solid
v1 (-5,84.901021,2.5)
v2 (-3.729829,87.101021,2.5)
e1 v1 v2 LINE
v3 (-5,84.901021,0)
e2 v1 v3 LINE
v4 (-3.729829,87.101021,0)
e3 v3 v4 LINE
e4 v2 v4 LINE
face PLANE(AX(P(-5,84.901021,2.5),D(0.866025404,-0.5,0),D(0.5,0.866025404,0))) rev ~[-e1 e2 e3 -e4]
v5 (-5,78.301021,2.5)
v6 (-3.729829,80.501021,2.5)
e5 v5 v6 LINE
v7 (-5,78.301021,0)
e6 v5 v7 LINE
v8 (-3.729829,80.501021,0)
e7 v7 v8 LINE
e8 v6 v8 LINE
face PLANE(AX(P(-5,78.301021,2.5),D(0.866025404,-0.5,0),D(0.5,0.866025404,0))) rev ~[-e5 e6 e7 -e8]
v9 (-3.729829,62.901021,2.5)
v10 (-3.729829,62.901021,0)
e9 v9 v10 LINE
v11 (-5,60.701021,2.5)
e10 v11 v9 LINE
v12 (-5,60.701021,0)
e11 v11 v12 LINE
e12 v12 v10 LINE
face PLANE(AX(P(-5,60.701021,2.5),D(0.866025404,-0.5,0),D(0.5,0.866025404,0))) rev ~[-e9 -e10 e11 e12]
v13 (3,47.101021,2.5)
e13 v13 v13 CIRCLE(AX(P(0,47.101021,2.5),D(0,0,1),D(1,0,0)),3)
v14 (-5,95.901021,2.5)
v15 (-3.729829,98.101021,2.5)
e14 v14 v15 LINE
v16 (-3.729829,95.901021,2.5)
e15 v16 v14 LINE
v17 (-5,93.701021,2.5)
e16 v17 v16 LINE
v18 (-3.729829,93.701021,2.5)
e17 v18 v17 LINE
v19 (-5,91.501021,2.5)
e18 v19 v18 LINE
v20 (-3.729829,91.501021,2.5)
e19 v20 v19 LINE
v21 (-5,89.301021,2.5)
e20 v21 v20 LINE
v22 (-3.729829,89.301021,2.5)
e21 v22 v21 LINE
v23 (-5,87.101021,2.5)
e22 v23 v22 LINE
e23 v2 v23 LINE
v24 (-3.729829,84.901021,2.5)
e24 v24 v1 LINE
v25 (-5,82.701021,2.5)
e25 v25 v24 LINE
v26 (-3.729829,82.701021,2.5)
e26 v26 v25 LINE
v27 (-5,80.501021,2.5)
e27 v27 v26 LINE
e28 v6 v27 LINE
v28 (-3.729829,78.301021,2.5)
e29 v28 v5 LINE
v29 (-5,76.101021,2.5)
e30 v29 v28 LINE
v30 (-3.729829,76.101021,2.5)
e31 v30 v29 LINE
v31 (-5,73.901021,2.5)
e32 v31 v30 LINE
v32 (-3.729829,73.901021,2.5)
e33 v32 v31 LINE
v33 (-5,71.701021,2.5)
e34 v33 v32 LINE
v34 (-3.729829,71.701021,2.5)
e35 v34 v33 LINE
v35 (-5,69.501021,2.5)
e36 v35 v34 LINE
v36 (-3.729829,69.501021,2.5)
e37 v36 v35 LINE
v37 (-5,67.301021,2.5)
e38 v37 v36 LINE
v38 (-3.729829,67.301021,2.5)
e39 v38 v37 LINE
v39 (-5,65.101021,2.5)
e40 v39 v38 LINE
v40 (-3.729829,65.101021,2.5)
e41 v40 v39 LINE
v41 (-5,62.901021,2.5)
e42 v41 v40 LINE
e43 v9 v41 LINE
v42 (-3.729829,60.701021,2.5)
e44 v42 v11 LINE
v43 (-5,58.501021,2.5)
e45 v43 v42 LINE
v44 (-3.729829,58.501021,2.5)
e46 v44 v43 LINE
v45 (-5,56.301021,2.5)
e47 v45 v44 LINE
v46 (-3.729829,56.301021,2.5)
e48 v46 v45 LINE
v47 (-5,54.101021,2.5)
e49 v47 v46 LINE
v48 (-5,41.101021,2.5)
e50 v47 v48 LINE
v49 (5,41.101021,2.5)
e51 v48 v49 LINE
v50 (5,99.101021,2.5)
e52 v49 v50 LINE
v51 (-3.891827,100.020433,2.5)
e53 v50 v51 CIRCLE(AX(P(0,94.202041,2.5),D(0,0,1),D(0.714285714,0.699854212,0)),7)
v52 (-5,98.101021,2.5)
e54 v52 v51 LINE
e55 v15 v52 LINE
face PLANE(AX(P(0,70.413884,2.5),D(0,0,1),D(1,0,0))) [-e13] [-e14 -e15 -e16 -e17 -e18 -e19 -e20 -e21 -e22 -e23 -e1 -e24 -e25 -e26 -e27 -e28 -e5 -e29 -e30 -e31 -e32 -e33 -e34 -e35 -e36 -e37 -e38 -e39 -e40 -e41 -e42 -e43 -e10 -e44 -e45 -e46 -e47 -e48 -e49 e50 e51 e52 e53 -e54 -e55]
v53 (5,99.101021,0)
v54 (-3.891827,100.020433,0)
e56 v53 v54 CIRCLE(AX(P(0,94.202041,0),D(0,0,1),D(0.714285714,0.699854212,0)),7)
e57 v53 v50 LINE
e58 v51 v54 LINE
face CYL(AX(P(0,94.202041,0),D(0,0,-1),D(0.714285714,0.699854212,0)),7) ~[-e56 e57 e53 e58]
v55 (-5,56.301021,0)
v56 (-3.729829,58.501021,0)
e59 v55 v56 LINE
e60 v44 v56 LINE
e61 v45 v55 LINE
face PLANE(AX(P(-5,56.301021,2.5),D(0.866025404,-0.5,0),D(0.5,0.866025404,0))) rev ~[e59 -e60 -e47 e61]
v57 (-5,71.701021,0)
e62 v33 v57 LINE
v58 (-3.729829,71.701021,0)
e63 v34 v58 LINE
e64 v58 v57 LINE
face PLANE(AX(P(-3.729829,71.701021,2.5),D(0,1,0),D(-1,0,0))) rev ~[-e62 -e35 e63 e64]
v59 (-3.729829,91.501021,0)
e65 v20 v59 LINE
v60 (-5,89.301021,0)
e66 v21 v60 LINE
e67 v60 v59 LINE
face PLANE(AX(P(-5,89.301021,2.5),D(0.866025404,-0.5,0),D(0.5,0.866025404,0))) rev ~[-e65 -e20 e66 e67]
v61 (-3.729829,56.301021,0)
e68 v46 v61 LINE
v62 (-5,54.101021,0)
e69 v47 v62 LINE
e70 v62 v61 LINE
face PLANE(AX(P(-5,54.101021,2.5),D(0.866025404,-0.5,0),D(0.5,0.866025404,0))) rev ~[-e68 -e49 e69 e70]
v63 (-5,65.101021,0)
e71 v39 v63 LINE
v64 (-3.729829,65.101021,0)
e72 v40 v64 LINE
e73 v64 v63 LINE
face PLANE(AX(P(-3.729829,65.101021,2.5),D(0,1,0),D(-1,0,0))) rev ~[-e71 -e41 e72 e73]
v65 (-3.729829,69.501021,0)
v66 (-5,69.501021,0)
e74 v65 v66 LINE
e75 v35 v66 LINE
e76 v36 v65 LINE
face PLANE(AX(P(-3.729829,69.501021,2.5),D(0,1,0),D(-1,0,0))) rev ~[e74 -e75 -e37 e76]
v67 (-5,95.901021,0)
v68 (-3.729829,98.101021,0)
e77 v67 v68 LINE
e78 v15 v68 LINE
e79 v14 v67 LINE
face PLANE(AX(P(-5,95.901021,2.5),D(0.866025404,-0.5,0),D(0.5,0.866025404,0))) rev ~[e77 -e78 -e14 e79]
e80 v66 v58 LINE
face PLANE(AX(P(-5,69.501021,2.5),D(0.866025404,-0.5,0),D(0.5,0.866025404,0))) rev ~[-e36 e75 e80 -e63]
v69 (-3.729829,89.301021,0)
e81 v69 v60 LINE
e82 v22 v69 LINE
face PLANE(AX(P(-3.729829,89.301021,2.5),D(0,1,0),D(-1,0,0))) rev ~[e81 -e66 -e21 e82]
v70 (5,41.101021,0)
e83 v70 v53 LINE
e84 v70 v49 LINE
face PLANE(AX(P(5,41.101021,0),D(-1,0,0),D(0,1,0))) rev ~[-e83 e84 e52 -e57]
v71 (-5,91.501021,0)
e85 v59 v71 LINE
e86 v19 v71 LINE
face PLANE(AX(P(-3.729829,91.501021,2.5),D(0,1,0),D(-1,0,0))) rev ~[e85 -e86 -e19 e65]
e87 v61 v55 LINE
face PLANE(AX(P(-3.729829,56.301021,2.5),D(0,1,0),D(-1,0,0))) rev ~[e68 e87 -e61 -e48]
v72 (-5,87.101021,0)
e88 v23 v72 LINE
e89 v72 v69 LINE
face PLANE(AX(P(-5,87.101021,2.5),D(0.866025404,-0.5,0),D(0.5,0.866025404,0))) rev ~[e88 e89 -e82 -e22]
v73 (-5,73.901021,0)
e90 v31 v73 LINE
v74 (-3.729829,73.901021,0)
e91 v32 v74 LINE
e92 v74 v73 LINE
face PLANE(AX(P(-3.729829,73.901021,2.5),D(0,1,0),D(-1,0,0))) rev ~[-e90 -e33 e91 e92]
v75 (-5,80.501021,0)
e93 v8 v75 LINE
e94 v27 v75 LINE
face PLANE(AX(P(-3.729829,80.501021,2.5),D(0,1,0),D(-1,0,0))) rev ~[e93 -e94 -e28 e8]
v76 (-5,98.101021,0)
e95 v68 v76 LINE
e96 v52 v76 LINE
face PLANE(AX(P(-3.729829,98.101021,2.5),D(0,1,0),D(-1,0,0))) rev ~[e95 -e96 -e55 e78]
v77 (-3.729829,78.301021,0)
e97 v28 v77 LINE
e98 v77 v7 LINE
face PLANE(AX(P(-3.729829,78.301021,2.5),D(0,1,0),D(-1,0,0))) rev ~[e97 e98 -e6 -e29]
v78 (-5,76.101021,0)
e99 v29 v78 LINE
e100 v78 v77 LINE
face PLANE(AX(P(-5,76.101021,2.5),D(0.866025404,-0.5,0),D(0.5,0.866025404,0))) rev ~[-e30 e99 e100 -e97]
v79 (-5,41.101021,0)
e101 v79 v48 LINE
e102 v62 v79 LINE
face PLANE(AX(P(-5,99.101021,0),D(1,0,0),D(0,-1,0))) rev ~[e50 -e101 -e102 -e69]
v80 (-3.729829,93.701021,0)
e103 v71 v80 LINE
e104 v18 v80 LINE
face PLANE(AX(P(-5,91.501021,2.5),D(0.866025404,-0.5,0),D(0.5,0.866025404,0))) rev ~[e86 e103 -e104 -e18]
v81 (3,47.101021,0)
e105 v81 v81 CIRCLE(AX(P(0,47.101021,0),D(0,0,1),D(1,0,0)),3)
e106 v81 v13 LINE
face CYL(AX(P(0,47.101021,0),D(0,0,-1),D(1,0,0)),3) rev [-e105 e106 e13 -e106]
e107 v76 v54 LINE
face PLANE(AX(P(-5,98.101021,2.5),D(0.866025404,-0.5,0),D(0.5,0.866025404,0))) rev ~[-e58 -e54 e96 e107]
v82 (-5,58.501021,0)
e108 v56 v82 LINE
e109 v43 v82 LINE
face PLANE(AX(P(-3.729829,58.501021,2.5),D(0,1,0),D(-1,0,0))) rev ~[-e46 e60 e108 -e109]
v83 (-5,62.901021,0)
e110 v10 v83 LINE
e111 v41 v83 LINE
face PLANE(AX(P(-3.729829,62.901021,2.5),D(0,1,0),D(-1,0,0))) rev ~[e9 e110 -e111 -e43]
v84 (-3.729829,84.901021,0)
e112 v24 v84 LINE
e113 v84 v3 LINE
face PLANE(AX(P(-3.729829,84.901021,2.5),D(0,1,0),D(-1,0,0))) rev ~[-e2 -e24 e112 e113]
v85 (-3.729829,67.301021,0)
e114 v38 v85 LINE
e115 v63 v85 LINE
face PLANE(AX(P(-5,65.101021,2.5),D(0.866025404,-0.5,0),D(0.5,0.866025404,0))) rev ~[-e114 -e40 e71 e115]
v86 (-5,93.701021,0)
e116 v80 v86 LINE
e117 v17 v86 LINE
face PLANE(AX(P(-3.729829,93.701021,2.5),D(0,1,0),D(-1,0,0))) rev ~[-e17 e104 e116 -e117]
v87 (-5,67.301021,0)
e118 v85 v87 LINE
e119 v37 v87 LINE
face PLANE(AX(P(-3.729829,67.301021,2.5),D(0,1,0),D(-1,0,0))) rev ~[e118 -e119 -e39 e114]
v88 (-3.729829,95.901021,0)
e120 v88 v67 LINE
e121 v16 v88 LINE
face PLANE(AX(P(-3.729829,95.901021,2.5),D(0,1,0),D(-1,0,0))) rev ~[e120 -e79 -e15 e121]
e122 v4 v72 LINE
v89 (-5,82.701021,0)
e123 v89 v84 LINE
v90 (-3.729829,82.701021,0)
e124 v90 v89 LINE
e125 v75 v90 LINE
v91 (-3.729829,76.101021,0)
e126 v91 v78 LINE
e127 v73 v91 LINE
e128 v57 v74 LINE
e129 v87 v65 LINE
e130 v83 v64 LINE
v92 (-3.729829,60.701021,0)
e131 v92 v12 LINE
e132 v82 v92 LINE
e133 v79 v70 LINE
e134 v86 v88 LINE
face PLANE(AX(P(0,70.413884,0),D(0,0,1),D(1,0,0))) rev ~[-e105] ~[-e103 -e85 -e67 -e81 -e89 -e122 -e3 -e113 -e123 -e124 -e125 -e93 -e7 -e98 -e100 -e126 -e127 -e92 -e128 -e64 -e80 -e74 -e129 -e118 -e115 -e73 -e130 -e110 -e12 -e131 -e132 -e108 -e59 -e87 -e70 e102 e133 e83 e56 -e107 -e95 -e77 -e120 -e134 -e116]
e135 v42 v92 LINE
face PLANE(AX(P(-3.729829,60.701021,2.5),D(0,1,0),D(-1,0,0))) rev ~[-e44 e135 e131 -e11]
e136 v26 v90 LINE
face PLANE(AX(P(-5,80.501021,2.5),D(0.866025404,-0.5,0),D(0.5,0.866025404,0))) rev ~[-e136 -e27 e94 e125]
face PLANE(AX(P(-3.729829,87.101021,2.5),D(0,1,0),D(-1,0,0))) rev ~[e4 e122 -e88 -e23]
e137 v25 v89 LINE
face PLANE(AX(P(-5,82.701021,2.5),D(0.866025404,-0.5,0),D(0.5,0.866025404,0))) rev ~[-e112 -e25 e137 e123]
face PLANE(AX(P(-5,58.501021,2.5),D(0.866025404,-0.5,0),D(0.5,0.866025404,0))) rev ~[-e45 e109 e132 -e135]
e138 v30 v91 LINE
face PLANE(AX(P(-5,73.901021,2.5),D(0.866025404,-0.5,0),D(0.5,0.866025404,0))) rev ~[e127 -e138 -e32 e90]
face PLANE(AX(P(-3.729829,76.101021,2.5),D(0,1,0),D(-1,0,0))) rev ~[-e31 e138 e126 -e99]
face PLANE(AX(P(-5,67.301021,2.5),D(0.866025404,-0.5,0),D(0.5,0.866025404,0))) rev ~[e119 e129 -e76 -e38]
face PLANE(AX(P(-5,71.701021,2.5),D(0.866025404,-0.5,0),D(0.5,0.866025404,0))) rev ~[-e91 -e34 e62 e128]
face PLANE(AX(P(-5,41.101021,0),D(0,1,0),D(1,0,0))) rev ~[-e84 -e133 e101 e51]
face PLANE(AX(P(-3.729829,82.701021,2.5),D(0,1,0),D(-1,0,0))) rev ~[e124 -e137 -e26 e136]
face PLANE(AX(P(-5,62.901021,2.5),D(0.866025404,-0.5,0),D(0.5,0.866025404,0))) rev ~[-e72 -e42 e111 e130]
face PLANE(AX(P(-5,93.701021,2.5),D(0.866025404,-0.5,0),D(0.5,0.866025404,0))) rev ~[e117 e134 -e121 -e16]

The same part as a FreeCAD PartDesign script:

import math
import FreeCAD as App
import Part
import Sketcher

V = App.Vector
Q = App.Units.Quantity


def add_polygon(sketch, points):
    """Adds a closed chain of lines whose ends are joined by coincident constraints."""
    first, n = sketch.GeometryCount, len(points)
    for a, b in zip(points, points[1:] + points[:1]):
        sketch.addGeometry(Part.LineSegment(App.Vector(*a, 0), App.Vector(*b, 0)), False)
    for i in range(n):
        sketch.addConstraint(Sketcher.Constraint("Coincident", first + i, 2, first + (i + 1) % n, 1))

doc = App.newDocument("Part")
body = doc.addObject("PartDesign::Body", "Body")

# Sketch on XY plane
sketch1 = doc.addObject("Sketcher::SketchObject", "Sketch")
body.addObject(sketch1)
sketch1.AttachmentSupport = (doc.XY_Plane, [""])
sketch1.MapMode = "FlatFace"
sketch1.addGeometry([
    Part.LineSegment(V(-5, 99.101021, 0), V(-5, 41.101021, 0)),  # 0
    Part.LineSegment(V(-5, 41.101021, 0), V(5, 41.101021, 0)),  # 1
    Part.LineSegment(V(5, 41.101021, 0), V(5, 99.101021, 0)),  # 2
    Part.ArcOfCircle(Part.Circle(V(0, 94.202041, 0), V(0, 0, 1), 7), math.radians(44.415309), math.radians(135.584691)),  # 3
    Part.Circle(V(0, 47.101021, 0), V(0, 0, 1), 3),  # 4
], False)
sketch1.addConstraint([
    Sketcher.Constraint("Coincident", 0, 2, 1, 1),
    Sketcher.Constraint("Coincident", 1, 2, 2, 1),
    Sketcher.Constraint("Coincident", 2, 2, 3, 1),
    Sketcher.Constraint("Coincident", 3, 2, 0, 1),
    Sketcher.Constraint("Vertical", 0),
    Sketcher.Constraint("Horizontal", 1),
    Sketcher.Constraint("Vertical", 2),
    Sketcher.Constraint("Symmetric", 2, 2, 3, 2, -2),
    Sketcher.Constraint("PointOnObject", 4, 3, -2),
    Sketcher.Constraint("Diameter", 4, Q("6 mm")),
    Sketcher.Constraint("Radius", 3, Q("7 mm")),
    Sketcher.Constraint("DistanceX", 1, 1, 1, 2, Q("10 mm")),
    Sketcher.Constraint("DistanceY", 0, 2, 0, 1, Q("58 mm")),
    Sketcher.Constraint("DistanceY", 0, 2, 4, 3, Q("6 mm")),
    Sketcher.Constraint("DistanceY", -1, 1, 3, 3, Q("94.202041 mm")),
])
pad1 = doc.addObject("PartDesign::Pad", "Pad")
body.addObject(pad1)
pad1.Profile = sketch1
pad1.Length = 2.5

# Sketch on XY plane
sketch2 = doc.addObject("Sketcher::SketchObject", "Sketch001")
body.addObject(sketch2)
sketch2.AttachmentSupport = (doc.XY_Plane, [""])
sketch2.MapMode = "FlatFace"
sketch2.AttachmentOffset = App.Placement(V(0, 0, 2.5), App.Rotation())
add_polygon(sketch2, [(-5, 56.301021), (-5, 54.101021), (-3.729829, 56.301021)])  # lines 0-2
sketch2.addConstraint([
    Sketcher.Constraint("Vertical", 0),
    Sketcher.Constraint("Horizontal", 2),
    Sketcher.Constraint("Angle", 1, Q("60 deg")),
    Sketcher.Constraint("DistanceY", 0, 2, 0, 1, Q("2.2 mm")),
    Sketcher.Constraint("DistanceX", 0, 2, -1, 1, Q("5 mm")),
    Sketcher.Constraint("DistanceY", -1, 1, 0, 2, Q("54.101021 mm")),
])
pocket1 = doc.addObject("PartDesign::Pocket", "Pocket")
body.addObject(pocket1)
pocket1.Profile = sketch2
pocket1.Type = "ThroughAll"
doc.recompute()

linearpattern = doc.addObject("PartDesign::LinearPattern", "LinearPattern")
body.addObject(linearpattern)
linearpattern.Originals = [pocket1]
linearpattern.Direction = (doc.Y_Axis, [""])
linearpattern.Mode = "offset"
linearpattern.Offset = 2.2
linearpattern.Occurrences = 22
body.Tip = linearpattern

doc.recompute()
